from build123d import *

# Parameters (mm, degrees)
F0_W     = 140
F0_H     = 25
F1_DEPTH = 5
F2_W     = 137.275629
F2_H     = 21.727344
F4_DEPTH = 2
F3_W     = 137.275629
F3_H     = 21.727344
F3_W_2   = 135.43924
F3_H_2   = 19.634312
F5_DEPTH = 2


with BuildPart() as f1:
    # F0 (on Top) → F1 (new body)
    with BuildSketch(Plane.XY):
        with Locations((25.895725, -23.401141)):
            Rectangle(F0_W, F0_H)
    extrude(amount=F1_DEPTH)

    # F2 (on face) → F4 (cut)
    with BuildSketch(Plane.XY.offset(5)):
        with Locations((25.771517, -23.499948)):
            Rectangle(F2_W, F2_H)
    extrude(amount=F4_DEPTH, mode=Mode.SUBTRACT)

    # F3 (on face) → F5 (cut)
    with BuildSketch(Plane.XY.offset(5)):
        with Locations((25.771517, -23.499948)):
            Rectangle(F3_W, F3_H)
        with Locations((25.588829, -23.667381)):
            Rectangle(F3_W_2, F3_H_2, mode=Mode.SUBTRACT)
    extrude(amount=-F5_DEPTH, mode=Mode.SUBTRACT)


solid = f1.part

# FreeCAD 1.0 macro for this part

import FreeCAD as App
import Part
import Sketcher

V = App.Vector


def add_polygon(sketch, points):
    """Adds a closed chain of lines whose ends are joined by coincident constraints."""
    first, n = sketch.GeometryCount, len(points)
    for a, b in zip(points, points[1:] + points[:1]):
        sketch.addGeometry(Part.LineSegment(App.Vector(*a, 0), App.Vector(*b, 0)), False)
    for i in range(n):
        sketch.addConstraint(Sketcher.Constraint("Coincident", first + i, 2, first + (i + 1) % n, 1))

doc = App.newDocument("Part")
body = doc.addObject("PartDesign::Body", "Body")

# Sketch on XY plane
sketch1 = body.newObject("Sketcher::SketchObject", "Sketch")
sketch1.AttachmentSupport = (doc.getObject("XY_Plane"), [""])
sketch1.MapMode = "FlatFace"
add_polygon(sketch1, [(-44, -11), (-44, -36), (96, -36), (96, -11)])  # lines 0-3
sketch1.addConstraint(Sketcher.Constraint("Vertical", 0))
sketch1.addConstraint(Sketcher.Constraint("Horizontal", 1))
sketch1.addConstraint(Sketcher.Constraint("Vertical", 2))
sketch1.addConstraint(Sketcher.Constraint("Horizontal", 3))
sketch1.addConstraint(Sketcher.Constraint("DistanceX", 1, 1, 1, 2, 140.0))
sketch1.addConstraint(Sketcher.Constraint("DistanceY", 0, 2, 0, 1, 25.0))
sketch1.addConstraint(Sketcher.Constraint("DistanceY", 0, 2, -1, 1, 35.901141))
sketch1.addConstraint(Sketcher.Constraint("DistanceX", 0, 2, -1, 1, 44.104275))
pad1 = body.newObject("PartDesign::Pad", "Pad")
pad1.Profile = sketch1
pad1.Length = 5

# Sketch on XY plane
sketch2 = body.newObject("Sketcher::SketchObject", "Sketch001")
sketch2.AttachmentSupport = (doc.getObject("XY_Plane"), [""])
sketch2.MapMode = "FlatFace"
sketch2.AttachmentOffset = App.Placement(V(0, 0, 5), App.Rotation())
add_polygon(sketch2, [(-43, -13), (-43, -34), (94, -34), (94, -13)])  # lines 0-3
sketch2.addConstraint(Sketcher.Constraint("Vertical", 0))
sketch2.addConstraint(Sketcher.Constraint("Horizontal", 1))
sketch2.addConstraint(Sketcher.Constraint("Vertical", 2))
sketch2.addConstraint(Sketcher.Constraint("Horizontal", 3))
sketch2.addConstraint(Sketcher.Constraint("DistanceX", 1, 1, 1, 2, 137.275629))
sketch2.addConstraint(Sketcher.Constraint("DistanceY", 0, 2, 0, 1, 21.727344))
sketch2.addConstraint(Sketcher.Constraint("DistanceY", 0, 2, -1, 1, 34.36362))
sketch2.addConstraint(Sketcher.Constraint("DistanceX", -1, 1, 1, 2, 94.409331))
pocket1 = body.newObject("PartDesign::Pocket", "Pocket")
pocket1.Profile = sketch2
pocket1.Length = 2
pocket1.Reversed = True

# Sketch on XY plane
sketch3 = body.newObject("Sketcher::SketchObject", "Sketch002")
sketch3.AttachmentSupport = (doc.getObject("XY_Plane"), [""])
sketch3.MapMode = "FlatFace"
sketch3.AttachmentOffset = App.Placement(V(0, 0, 5), App.Rotation())
add_polygon(sketch3, [(-43, -13), (-43, -34), (94, -34), (94, -13)])  # lines 0-3
add_polygon(sketch3, [(93, -33), (-42, -33), (-42, -14), (93, -14)])  # lines 4-7
sketch3.addConstraint(Sketcher.Constraint("Vertical", 0))
sketch3.addConstraint(Sketcher.Constraint("Horizontal", 1))
sketch3.addConstraint(Sketcher.Constraint("Vertical", 2))
sketch3.addConstraint(Sketcher.Constraint("Horizontal", 3))
sketch3.addConstraint(Sketcher.Constraint("Horizontal", 4))
sketch3.addConstraint(Sketcher.Constraint("Vertical", 5))
sketch3.addConstraint(Sketcher.Constraint("Horizontal", 6))
sketch3.addConstraint(Sketcher.Constraint("Vertical", 7))
sketch3.addConstraint(Sketcher.Constraint("DistanceX", 1, 1, 1, 2, 137.275629))
sketch3.addConstraint(Sketcher.Constraint("DistanceX", 4, 2, 4, 1, 135.43924))
sketch3.addConstraint(Sketcher.Constraint("DistanceY", 0, 2, 0, 1, 21.727344))
sketch3.addConstraint(Sketcher.Constraint("DistanceY", 5, 1, 5, 2, 19.634312))
sketch3.addConstraint(Sketcher.Constraint("DistanceY", 0, 2, -1, 1, 34.36362))
sketch3.addConstraint(Sketcher.Constraint("DistanceX", -1, 1, 1, 2, 94.409331))
sketch3.addConstraint(Sketcher.Constraint("DistanceX", 4, 2, -1, 1, 42.130791))
sketch3.addConstraint(Sketcher.Constraint("DistanceY", 4, 2, 3, 2, 20.848261))
pocket2 = body.newObject("PartDesign::Pocket", "Pocket001")
pocket2.Profile = sketch3
pocket2.Length = 2

doc.recompute()
